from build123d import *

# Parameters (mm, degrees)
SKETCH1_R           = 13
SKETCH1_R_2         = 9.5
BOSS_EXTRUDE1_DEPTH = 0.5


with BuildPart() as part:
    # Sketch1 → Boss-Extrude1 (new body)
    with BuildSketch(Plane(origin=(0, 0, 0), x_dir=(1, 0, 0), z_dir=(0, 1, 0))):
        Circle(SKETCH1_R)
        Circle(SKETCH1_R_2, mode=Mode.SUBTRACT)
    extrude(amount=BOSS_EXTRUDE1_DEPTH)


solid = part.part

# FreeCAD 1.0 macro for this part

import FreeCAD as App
import Part
import Sketcher
from FreeCAD import Vector
Q = App.Units.Quantity

doc = App.newDocument("Part")
body = doc.addObject("PartDesign::Body", "Body")

sketch1 = body.newObject("Sketcher::SketchObject", "Sketch")
sketch1.AttachmentSupport = (doc.getObject("XZ_Plane"), [""])
sketch1.MapMode = "FlatFace"
sketch1.addGeometry(Part.Circle(Vector(0, 0, 0), Vector(0, 0, 1), 13), False)
sketch1.addGeometry(Part.Circle(Vector(0, 0, 0), Vector(0, 0, 1), 10), False)
sketch1.addConstraint(Sketcher.Constraint("Coincident", 0, 3, -1, 1))
sketch1.addConstraint(Sketcher.Constraint("Coincident", 1, 3, -1, 1))
sketch1.addConstraint(Sketcher.Constraint("Diameter", 0, Q("26 mm")))
sketch1.addConstraint(Sketcher.Constraint("Diameter", 1, Q("19 mm")))
pad1 = body.newObject("PartDesign::Pad", "Pad")
pad1.Profile = sketch1
pad1.Length = 0.5
pad1.Reversed = True

doc.recompute()
